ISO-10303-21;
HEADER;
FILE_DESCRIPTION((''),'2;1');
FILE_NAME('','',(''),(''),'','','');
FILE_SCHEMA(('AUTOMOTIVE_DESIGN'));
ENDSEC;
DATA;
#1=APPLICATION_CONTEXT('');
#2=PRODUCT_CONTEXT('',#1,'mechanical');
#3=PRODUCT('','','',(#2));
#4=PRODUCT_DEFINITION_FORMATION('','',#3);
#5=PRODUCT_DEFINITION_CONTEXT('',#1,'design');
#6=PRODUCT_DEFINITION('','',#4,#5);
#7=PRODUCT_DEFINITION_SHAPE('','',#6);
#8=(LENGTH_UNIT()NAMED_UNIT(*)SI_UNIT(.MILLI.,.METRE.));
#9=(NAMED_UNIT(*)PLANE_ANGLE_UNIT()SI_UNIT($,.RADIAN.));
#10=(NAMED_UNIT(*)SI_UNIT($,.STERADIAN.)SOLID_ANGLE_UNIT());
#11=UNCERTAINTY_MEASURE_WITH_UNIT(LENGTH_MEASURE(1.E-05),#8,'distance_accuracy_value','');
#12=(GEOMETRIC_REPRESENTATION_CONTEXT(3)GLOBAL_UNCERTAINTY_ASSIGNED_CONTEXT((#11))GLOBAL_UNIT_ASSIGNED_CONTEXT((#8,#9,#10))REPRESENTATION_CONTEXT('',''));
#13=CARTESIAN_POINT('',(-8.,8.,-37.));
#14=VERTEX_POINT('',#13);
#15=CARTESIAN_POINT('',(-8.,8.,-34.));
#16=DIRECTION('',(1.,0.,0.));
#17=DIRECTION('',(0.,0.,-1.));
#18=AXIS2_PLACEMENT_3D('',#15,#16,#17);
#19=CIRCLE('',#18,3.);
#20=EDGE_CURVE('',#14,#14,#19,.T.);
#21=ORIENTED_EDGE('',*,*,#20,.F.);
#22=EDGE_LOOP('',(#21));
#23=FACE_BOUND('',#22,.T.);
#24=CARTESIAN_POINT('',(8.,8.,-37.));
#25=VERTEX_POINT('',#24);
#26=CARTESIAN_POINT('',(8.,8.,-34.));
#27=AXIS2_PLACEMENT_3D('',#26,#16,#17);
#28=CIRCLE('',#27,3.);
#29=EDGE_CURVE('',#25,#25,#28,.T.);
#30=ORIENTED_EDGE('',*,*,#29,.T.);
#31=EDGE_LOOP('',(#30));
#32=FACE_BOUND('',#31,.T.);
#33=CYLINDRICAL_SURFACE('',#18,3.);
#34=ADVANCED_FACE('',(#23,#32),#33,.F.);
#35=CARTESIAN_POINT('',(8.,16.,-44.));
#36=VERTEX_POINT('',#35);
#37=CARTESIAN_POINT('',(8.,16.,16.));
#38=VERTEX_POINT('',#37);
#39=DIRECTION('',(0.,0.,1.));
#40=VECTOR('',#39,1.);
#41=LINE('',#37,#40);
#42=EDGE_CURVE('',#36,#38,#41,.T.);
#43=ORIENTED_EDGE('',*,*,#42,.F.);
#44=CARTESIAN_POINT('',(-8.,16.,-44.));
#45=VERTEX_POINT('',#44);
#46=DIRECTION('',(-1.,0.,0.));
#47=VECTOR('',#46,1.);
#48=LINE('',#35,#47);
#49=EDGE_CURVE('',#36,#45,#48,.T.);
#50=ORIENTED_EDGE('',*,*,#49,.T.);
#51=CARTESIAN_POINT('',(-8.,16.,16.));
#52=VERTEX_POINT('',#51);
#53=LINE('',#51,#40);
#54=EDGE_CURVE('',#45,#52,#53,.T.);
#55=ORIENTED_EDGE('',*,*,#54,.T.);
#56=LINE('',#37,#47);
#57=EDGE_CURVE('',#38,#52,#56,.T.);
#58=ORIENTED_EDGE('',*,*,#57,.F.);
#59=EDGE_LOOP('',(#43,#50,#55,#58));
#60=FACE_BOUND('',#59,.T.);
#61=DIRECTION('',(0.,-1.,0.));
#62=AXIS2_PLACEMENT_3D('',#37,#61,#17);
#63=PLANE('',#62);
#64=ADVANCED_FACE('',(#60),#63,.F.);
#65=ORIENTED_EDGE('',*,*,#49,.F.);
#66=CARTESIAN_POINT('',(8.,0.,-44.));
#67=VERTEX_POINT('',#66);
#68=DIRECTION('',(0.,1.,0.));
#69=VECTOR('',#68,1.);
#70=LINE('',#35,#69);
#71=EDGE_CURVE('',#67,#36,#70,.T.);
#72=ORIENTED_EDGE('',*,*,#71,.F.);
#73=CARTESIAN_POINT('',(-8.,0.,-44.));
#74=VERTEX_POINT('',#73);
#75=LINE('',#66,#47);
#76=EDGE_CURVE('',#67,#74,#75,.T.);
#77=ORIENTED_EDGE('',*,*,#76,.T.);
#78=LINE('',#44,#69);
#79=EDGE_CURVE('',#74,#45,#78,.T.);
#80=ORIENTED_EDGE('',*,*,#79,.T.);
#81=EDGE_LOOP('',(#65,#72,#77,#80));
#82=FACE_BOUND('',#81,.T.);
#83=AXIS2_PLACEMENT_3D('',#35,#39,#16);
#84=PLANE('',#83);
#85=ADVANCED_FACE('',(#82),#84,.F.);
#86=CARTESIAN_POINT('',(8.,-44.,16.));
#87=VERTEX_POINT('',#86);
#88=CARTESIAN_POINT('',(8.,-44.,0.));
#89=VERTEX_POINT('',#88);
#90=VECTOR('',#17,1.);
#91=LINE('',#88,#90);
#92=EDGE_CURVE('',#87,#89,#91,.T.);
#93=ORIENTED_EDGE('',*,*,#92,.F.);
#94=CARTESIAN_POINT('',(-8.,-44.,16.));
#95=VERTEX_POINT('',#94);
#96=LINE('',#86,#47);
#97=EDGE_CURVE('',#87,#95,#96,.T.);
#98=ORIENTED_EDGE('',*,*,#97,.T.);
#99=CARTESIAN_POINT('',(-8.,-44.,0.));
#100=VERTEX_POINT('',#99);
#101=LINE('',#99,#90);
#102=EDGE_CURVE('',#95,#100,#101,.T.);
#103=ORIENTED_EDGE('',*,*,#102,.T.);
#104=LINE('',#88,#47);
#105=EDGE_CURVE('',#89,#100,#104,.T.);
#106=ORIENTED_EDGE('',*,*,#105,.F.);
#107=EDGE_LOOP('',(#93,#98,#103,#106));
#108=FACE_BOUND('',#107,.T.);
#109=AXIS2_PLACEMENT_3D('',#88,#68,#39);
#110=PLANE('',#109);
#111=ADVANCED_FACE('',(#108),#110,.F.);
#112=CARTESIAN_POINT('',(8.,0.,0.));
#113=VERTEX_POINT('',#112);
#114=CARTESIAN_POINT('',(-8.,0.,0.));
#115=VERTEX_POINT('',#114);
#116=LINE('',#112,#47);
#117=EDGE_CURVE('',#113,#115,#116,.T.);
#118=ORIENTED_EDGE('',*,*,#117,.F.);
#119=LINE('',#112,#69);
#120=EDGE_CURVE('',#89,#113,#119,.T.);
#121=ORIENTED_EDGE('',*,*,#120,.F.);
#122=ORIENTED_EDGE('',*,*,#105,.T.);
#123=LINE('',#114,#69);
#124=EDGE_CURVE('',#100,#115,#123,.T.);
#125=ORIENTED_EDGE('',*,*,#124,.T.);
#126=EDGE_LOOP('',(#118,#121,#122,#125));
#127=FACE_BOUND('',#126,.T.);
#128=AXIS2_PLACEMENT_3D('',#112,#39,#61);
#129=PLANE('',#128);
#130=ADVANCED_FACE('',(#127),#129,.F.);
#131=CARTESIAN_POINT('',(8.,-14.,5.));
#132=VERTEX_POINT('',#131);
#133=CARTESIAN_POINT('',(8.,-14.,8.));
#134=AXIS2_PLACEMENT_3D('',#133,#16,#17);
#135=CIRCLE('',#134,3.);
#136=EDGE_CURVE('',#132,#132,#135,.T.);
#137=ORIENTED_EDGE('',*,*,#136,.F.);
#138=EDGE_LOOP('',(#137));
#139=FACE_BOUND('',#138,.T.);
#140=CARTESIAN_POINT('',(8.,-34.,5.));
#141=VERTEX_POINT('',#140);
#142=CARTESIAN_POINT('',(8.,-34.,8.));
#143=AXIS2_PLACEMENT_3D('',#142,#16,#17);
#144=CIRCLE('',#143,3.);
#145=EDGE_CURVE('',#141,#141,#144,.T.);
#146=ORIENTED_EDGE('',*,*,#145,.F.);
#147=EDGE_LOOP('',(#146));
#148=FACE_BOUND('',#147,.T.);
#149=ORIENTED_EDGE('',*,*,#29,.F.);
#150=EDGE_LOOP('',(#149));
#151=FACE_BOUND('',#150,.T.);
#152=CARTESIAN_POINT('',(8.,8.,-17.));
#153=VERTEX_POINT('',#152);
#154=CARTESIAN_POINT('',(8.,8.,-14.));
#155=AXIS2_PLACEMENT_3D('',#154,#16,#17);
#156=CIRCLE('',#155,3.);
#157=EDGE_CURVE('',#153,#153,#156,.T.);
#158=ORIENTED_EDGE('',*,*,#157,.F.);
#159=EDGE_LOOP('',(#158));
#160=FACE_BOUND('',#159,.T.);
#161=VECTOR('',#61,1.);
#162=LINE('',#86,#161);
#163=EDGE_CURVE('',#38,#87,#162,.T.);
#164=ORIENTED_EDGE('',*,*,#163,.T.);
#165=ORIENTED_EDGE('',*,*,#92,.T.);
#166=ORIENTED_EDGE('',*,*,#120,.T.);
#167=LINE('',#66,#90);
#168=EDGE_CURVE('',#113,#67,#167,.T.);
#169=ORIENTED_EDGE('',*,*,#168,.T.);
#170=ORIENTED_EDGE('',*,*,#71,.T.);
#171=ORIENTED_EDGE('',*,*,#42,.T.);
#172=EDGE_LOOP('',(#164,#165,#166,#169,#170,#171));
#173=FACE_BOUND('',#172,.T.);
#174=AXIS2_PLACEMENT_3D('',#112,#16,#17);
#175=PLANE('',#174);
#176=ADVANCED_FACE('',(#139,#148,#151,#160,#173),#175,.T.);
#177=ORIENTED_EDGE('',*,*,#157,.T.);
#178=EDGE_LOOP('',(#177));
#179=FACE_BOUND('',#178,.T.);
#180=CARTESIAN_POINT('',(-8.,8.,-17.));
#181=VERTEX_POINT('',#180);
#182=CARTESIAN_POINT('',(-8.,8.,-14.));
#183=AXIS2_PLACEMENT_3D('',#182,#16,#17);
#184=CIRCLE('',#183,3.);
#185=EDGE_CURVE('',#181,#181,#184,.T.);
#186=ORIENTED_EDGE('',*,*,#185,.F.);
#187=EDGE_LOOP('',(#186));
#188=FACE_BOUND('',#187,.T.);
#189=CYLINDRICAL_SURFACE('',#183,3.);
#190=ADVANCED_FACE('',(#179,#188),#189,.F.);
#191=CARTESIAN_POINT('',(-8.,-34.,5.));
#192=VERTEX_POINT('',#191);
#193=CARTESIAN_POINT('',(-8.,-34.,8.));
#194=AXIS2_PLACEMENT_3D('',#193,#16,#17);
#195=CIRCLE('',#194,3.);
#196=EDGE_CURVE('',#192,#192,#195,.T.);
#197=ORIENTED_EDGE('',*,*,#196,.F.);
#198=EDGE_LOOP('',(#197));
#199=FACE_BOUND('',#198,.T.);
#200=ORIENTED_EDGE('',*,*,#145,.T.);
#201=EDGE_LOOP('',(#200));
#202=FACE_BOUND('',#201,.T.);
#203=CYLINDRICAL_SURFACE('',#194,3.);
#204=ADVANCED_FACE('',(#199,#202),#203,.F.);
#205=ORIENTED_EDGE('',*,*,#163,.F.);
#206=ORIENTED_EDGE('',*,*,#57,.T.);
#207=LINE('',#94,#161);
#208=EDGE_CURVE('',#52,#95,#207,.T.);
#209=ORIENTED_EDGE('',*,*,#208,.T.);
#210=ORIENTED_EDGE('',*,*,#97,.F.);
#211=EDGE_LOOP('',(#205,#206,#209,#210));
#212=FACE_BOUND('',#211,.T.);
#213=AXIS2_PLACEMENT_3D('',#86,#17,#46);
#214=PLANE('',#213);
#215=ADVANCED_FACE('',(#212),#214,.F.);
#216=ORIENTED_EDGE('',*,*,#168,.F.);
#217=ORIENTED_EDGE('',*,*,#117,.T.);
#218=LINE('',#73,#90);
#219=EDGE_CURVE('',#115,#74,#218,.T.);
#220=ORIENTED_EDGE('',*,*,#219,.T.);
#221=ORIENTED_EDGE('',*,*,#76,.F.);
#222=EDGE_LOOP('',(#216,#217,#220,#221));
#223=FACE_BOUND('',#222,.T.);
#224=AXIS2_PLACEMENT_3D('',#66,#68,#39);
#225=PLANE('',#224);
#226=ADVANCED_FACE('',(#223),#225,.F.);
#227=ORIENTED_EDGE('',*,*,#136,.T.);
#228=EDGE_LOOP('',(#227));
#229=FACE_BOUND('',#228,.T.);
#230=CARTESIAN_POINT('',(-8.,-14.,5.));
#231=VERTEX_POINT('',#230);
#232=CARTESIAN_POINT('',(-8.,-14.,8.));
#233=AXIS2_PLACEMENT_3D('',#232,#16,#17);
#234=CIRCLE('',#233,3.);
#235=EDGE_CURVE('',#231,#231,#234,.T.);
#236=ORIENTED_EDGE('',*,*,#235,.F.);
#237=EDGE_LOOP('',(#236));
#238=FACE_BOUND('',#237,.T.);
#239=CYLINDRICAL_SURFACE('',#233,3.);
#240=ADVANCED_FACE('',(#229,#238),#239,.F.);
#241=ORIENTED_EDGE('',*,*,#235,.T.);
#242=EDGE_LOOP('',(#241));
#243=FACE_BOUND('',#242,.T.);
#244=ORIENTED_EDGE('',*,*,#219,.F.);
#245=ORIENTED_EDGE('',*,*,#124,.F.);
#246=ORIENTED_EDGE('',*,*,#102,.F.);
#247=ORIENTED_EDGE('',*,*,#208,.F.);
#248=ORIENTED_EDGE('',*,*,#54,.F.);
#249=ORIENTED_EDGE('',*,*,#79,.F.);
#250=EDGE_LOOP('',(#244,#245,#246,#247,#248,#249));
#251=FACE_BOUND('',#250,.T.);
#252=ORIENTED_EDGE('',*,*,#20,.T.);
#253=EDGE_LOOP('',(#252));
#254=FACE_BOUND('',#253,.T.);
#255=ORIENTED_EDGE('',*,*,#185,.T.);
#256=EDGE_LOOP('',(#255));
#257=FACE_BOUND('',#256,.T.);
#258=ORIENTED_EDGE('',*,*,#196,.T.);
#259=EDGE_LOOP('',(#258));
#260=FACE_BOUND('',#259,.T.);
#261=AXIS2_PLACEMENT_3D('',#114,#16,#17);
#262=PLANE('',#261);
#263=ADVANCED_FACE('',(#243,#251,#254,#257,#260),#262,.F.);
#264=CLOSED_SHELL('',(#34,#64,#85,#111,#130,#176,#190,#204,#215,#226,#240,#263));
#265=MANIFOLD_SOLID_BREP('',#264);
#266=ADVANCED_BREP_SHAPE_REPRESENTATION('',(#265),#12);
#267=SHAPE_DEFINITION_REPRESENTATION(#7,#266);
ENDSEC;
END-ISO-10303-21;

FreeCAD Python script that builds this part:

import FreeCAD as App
import Part
import Sketcher
from FreeCAD import Vector
Q = App.Units.Quantity


def add_polygon(sketch, points):
    """Adds a closed chain of lines whose ends are joined by coincident constraints."""
    first, n = sketch.GeometryCount, len(points)
    for a, b in zip(points, points[1:] + points[:1]):
        sketch.addGeometry(Part.LineSegment(App.Vector(*a, 0), App.Vector(*b, 0)), False)
    for i in range(n):
        sketch.addConstraint(Sketcher.Constraint("Coincident", first + i, 2, first + (i + 1) % n, 1))

doc = App.newDocument("Part")
params = doc.addObject("Spreadsheet::Sheet", "Params")
for row, (alias, value) in enumerate([
    ("sketch1_width", "44 mm"),
    ("sketch1_width2", "16 mm"),
    ("pad1_length", "16 mm"),
    ("sketch2_diameter", "6 mm"),
], start=1):
    params.set(f"A{row}", alias)
    params.set(f"B{row}", "=" + value)
    params.setAlias(f"B{row}", alias)

body = doc.addObject("PartDesign::Body", "Body")

sketch1 = body.newObject("Sketcher::SketchObject", "Sketch")
sketch1.AttachmentSupport = (doc.getObject("YZ_Plane"), [""])
sketch1.MapMode = "FlatFace"
add_polygon(sketch1, [(-44, 0), (0, 0), (0, -44), (16, -44), (16, 16), (-44, 16)])
sketch1.addConstraint(Sketcher.Constraint("Horizontal", 0))
sketch1.addConstraint(Sketcher.Constraint("Vertical", 1))
sketch1.addConstraint(Sketcher.Constraint("Horizontal", 2))
sketch1.addConstraint(Sketcher.Constraint("Vertical", 3))
sketch1.addConstraint(Sketcher.Constraint("Horizontal", 4))
sketch1.addConstraint(Sketcher.Constraint("Vertical", 5))
sketch1.addConstraint(Sketcher.Constraint("Coincident", 0, 2, -1, 1))
sketch1.addConstraint(Sketcher.Constraint("Equal", 0, 1))
sketch1.addConstraint(Sketcher.Constraint("Equal", 4, 3))
sketch1.addConstraint(Sketcher.Constraint("DistanceX", 0, 1, 0, 2, Q("44 mm")))
sketch1.addConstraint(Sketcher.Constraint("DistanceX", 2, 1, 2, 2, Q("16 mm")))
sketch1.setExpression("Constraints[15]", "Params.sketch1_width")
sketch1.setExpression("Constraints[16]", "Params.sketch1_width2")
pad1 = body.newObject("PartDesign::Pad", "Pad")
pad1.Profile = sketch1
pad1.setExpression("Length", "Params.pad1_length")
pad1.Midplane = True

sketch2 = body.newObject("Sketcher::SketchObject", "Sketch001")
sketch2.AttachmentSupport = (doc.getObject("YZ_Plane"), [""])
sketch2.MapMode = "FlatFace"
sketch2.AttachmentOffset = App.Placement(Vector(0, 0, 8), App.Rotation())
sketch2.addGeometry(Part.Circle(Vector(-34, 8, 0), Vector(0, 0, 1), 3), False)
sketch2.addGeometry(Part.Circle(Vector(-14, 8, 0), Vector(0, 0, 1), 3), False)
sketch2.addGeometry(Part.Circle(Vector(8, -14, 0), Vector(0, 0, 1), 3), False)
sketch2.addGeometry(Part.Circle(Vector(8, -34, 0), Vector(0, 0, 1), 3), False)
sketch2.addConstraint(Sketcher.Constraint("Equal", 0, 1))
sketch2.addConstraint(Sketcher.Constraint("Equal", 1, 2))
sketch2.addConstraint(Sketcher.Constraint("Equal", 2, 3))
sketch2.addConstraint(Sketcher.Constraint("Horizontal", 0, 3, 1, 3))
sketch2.addConstraint(Sketcher.Constraint("Vertical", 2, 3, 3, 3))
sketch2.addConstraint(Sketcher.Constraint("Diameter", 0, Q("6 mm")))
sketch2.addConstraint(Sketcher.Constraint("DistanceX", 0, 3, -1, 1, Q("34 mm")))
sketch2.addConstraint(Sketcher.Constraint("DistanceY", -1, 1, 0, 3, Q("8 mm")))
sketch2.addConstraint(Sketcher.Constraint("DistanceX", 1, 3, -1, 1, Q("14 mm")))
sketch2.addConstraint(Sketcher.Constraint("DistanceX", -1, 1, 2, 3, Q("8 mm")))
sketch2.addConstraint(Sketcher.Constraint("DistanceY", 2, 3, -1, 1, Q("14 mm")))
sketch2.addConstraint(Sketcher.Constraint("DistanceY", 3, 3, -1, 1, Q("34 mm")))
sketch2.setExpression("Constraints[5]", "Params.sketch2_diameter")
pocket1 = body.newObject("PartDesign::Pocket", "Pocket")
pocket1.Profile = sketch2
pocket1.Type = "ThroughAll"

doc.recompute()
